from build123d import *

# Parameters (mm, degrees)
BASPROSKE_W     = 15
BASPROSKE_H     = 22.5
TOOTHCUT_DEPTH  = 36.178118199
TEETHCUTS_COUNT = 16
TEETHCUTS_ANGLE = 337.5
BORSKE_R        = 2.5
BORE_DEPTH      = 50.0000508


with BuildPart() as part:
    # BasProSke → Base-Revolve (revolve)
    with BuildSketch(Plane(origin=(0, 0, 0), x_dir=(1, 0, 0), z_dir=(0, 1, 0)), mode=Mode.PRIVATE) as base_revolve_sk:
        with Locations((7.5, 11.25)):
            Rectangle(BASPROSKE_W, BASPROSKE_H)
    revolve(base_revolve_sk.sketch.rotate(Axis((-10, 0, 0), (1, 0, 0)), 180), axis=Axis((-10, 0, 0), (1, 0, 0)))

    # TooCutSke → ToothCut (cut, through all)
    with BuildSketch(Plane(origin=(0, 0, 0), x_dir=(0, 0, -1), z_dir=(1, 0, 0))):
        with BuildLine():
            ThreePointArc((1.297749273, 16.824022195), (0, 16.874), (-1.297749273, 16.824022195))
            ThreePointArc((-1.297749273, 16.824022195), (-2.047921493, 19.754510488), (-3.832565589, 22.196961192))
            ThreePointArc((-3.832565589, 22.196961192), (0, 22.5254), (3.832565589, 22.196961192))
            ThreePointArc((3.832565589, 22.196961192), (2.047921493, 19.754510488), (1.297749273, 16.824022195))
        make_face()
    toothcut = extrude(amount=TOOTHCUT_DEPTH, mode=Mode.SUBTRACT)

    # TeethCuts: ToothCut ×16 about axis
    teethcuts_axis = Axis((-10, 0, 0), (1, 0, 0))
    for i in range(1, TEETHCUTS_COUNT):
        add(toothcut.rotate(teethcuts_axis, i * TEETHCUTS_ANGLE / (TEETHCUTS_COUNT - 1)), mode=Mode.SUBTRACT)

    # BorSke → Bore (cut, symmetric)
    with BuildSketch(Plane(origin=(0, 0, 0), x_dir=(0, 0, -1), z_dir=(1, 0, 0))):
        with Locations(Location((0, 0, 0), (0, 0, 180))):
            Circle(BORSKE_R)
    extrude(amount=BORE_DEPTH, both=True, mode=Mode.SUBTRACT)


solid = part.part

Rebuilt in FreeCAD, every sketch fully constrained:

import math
import FreeCAD as App
import Part
import Sketcher


def add_polygon(sketch, points):
    """Adds a closed chain of lines whose ends are joined by coincident constraints."""
    first, n = sketch.GeometryCount, len(points)
    for a, b in zip(points, points[1:] + points[:1]):
        sketch.addGeometry(Part.LineSegment(App.Vector(*a, 0), App.Vector(*b, 0)), False)
    for i in range(n):
        sketch.addConstraint(Sketcher.Constraint("Coincident", first + i, 2, first + (i + 1) % n, 1))

doc = App.newDocument("Part")
body = doc.addObject("PartDesign::Body", "Body")

# Sketch on XZ plane
sketch1 = body.newObject("Sketcher::SketchObject", "Sketch")
sketch1.AttachmentSupport = (doc.getObject("XZ_Plane"), [""])
sketch1.MapMode = "FlatFace"
add_polygon(sketch1, [(0, -22), (0, 0), (15, 0), (15, -22)])  # lines 0-3
sketch1.addConstraint([
    Sketcher.Constraint("Vertical", 0),
    Sketcher.Constraint("Horizontal", 1),
    Sketcher.Constraint("Vertical", 2),
    Sketcher.Constraint("Horizontal", 3),
    Sketcher.Constraint("Coincident", 0, 2, -1, 1),
    Sketcher.Constraint("DistanceX", 1, 1, 1, 2, 15.0),
    Sketcher.Constraint("DistanceY", 0, 1, 0, 2, 22.5),
])
revolution = body.newObject("PartDesign::Revolution", "Revolution")
revolution.Profile = sketch1
revolution.ReferenceAxis = (sketch1, ["H_Axis"])
revolution.Angle = 360

# Sketch on YZ plane
sketch2 = body.newObject("Sketcher::SketchObject", "Sketch001")
sketch2.AttachmentSupport = (doc.getObject("YZ_Plane"), [""])
sketch2.MapMode = "FlatFace"
sketch2.addGeometry([
    Part.ArcOfCircle(Part.Circle(App.Vector(0, 0, 0), App.Vector(0, 0, 1), 16.9), math.radians(-4.41), math.radians(4.41)),
    Part.ArcOfCircle(Part.Circle(App.Vector(16.3, -9.3, 0), App.Vector(0, 0, 1), 8), math.radians(43), math.radians(87)),
    Part.ArcOfCircle(Part.Circle(App.Vector(0, 0, 0), App.Vector(0, 0, 1), 22.5), math.radians(-9.8), math.radians(9.8)),
    Part.ArcOfCircle(Part.Circle(App.Vector(16.3, 9.3, 0), App.Vector(0, 0, 1), 8), math.radians(-87), math.radians(-43)),
], False)
sketch2.addConstraint([
    Sketcher.Constraint("Coincident", 0, 1, 1, 2),
    Sketcher.Constraint("Coincident", 1, 1, 2, 1),
    Sketcher.Constraint("Coincident", 2, 2, 3, 2),
    Sketcher.Constraint("Coincident", 3, 1, 0, 2),
    Sketcher.Constraint("Coincident", 0, 3, -1, 1),
    Sketcher.Constraint("Coincident", 2, 3, -1, 1),
    Sketcher.Constraint("Equal", 1, 3),
    Sketcher.Constraint("Symmetric", 1, 3, 3, 3, -1),
    Sketcher.Constraint("Radius", 1, 8.0),
    Sketcher.Constraint("Radius", 0, 16.874),
    Sketcher.Constraint("Radius", 2, 22.5254),
    Sketcher.Constraint("DistanceY", 0, 1, 3, 1, 2.595499),
    Sketcher.Constraint("DistanceX", -1, 1, 1, 3, 16.341108),
])
pocket1 = body.newObject("PartDesign::Pocket", "Pocket")
pocket1.Profile = sketch2
pocket1.Type = "ThroughAll"
pocket1.Reversed = True
doc.recompute()

polarpattern = body.newObject("PartDesign::PolarPattern", "PolarPattern")
polarpattern.Originals = [pocket1]
polarpattern.Axis = (doc.getObject("X_Axis"), [""])
polarpattern.Angle = 360
polarpattern.Occurrences = 16
body.Tip = polarpattern

# Sketch on YZ plane
sketch3 = body.newObject("Sketcher::SketchObject", "Sketch002")
sketch3.AttachmentSupport = (doc.getObject("YZ_Plane"), [""])
sketch3.MapMode = "FlatFace"
sketch3.addGeometry(Part.Circle(App.Vector(0, 0, 0), App.Vector(0, 0, 1), 2.5), False)
sketch3.addConstraint([
    Sketcher.Constraint("Coincident", 0, 3, -1, 1),
    Sketcher.Constraint("Diameter", 0, 5.0),
])
pocket2 = body.newObject("PartDesign::Pocket", "Pocket001")
pocket2.Profile = sketch3
pocket2.Length = 100.000102
pocket2.Midplane = True

doc.recompute()
